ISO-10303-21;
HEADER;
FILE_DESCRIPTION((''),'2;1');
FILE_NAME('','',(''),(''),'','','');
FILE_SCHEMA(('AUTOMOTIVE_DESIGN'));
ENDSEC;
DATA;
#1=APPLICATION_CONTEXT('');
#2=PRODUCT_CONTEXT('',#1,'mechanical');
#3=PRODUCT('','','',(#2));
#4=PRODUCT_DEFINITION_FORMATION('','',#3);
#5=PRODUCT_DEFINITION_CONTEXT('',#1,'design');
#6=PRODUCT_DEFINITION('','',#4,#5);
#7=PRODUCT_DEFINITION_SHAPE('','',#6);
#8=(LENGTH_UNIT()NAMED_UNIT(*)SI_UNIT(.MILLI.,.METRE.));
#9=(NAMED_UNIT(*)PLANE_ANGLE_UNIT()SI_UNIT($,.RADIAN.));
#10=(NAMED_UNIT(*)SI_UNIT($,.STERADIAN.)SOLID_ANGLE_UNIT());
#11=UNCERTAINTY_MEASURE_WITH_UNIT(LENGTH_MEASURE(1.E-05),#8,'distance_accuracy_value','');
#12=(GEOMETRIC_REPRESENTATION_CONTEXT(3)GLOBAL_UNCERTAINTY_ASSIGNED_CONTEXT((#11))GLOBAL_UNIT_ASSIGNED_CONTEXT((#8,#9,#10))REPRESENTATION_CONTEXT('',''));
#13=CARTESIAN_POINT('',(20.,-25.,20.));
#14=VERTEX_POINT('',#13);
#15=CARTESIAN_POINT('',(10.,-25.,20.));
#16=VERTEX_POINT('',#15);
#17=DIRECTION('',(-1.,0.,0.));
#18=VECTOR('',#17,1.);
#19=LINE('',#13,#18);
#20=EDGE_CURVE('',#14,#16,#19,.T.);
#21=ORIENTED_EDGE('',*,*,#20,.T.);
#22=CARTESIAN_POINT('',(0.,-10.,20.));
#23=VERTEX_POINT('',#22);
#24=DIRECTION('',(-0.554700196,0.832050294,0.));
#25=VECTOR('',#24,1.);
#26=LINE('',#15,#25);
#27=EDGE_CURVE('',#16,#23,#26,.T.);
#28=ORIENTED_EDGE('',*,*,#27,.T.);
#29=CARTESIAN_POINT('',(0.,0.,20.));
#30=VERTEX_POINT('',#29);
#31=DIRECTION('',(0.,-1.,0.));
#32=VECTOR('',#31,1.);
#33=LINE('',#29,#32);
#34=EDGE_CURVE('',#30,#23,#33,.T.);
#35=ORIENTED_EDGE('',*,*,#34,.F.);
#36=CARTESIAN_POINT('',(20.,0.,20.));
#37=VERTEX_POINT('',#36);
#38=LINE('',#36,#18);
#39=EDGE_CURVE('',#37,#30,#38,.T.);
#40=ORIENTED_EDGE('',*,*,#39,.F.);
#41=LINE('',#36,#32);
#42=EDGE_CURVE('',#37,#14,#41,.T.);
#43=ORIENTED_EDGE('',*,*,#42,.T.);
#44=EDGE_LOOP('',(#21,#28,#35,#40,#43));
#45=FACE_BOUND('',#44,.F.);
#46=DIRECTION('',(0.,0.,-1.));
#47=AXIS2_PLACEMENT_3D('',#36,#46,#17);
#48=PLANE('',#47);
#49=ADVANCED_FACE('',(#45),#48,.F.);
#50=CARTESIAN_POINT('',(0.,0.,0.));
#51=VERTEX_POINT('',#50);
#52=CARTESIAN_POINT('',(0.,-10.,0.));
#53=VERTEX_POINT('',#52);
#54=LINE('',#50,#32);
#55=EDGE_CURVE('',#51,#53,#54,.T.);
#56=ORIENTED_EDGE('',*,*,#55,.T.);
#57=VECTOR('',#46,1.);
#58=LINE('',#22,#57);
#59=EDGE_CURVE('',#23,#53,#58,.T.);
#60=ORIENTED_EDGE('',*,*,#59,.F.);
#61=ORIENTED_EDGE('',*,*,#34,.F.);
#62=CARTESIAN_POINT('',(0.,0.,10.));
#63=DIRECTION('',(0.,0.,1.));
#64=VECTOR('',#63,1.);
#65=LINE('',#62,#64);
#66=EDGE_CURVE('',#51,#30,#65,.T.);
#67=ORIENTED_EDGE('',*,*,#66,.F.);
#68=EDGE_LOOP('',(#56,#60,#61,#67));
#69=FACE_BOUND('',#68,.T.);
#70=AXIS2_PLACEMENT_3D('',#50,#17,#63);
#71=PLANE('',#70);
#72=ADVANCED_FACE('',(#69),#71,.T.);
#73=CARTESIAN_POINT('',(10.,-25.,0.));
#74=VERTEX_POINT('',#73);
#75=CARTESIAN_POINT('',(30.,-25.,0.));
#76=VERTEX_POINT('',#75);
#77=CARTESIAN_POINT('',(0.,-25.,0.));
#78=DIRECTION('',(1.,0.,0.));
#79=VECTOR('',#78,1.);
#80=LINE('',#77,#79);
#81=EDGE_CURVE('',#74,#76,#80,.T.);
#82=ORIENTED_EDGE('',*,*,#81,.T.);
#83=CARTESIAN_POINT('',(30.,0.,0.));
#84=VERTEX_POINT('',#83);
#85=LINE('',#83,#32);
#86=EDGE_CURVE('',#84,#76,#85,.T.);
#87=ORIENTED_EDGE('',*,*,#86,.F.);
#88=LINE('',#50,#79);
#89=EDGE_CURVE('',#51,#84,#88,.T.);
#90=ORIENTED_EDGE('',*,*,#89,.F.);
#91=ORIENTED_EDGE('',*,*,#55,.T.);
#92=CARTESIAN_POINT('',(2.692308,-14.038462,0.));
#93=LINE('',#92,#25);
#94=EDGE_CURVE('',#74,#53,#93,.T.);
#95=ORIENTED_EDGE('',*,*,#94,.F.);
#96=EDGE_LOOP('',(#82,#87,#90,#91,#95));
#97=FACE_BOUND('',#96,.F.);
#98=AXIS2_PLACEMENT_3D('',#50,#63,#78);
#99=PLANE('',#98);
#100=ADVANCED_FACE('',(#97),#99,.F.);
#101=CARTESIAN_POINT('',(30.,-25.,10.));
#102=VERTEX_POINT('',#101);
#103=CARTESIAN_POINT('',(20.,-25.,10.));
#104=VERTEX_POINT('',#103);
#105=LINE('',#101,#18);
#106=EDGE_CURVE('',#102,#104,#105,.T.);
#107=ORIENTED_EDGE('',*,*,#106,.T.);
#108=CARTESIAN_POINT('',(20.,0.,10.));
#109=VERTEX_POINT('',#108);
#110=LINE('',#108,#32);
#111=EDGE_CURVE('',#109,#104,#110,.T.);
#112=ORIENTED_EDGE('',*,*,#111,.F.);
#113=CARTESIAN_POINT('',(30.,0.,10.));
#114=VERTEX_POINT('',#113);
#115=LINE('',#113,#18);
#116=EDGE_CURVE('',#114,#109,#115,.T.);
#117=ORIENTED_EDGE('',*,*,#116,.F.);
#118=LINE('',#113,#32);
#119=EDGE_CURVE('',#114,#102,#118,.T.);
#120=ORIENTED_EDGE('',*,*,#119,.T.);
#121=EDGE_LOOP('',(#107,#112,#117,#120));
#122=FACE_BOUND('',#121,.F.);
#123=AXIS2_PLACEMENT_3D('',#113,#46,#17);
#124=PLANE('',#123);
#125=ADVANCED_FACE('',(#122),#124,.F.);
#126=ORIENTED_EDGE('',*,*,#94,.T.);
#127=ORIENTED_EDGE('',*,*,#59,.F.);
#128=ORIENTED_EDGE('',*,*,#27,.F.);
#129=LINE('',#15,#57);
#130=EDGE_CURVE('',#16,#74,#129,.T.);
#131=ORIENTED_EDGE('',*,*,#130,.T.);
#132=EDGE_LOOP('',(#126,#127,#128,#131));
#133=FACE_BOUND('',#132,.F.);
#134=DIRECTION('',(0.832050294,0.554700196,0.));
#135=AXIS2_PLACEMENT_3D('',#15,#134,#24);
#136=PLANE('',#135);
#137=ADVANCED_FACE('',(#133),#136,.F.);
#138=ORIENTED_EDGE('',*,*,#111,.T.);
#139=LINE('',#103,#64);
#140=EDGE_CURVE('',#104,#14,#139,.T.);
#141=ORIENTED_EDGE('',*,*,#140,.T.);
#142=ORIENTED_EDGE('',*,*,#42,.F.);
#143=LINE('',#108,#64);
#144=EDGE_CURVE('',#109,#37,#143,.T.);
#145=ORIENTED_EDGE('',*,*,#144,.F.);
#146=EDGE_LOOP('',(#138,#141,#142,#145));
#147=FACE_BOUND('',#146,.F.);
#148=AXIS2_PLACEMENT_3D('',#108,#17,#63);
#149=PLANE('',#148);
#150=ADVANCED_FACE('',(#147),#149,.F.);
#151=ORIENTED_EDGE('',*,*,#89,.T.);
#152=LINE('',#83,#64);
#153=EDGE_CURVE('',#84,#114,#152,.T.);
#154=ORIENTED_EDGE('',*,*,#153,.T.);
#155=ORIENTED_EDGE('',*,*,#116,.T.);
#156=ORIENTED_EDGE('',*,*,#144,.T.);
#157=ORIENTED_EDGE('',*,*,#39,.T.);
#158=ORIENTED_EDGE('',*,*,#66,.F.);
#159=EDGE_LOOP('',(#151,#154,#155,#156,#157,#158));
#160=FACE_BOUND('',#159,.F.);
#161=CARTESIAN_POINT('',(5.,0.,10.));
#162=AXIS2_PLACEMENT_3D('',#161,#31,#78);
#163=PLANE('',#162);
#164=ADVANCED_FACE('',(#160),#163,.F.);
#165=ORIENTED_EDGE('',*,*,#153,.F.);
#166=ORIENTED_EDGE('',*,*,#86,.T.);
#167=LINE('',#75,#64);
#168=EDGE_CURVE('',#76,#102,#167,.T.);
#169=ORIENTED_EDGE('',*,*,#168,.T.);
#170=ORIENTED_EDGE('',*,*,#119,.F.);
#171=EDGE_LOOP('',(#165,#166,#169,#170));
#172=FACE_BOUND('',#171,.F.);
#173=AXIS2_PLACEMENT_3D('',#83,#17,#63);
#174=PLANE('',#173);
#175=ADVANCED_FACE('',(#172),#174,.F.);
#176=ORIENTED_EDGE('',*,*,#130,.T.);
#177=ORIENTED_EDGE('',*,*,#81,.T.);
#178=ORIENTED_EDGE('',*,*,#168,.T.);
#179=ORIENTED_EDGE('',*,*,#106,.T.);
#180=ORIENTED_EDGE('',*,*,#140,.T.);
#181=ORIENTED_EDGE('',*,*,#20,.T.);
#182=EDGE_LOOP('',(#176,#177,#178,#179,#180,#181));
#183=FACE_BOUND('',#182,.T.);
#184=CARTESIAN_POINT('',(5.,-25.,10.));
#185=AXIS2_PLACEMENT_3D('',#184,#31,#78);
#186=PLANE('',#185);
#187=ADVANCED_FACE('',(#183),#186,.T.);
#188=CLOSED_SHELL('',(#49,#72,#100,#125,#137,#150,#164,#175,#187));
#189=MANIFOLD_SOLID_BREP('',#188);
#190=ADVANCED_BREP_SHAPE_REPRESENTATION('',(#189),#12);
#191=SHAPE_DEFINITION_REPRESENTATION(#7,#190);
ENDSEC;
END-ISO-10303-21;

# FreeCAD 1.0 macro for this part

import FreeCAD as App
import Part
import Sketcher

V = App.Vector


def add_polygon(sketch, points):
    """Adds a closed chain of lines whose ends are joined by coincident constraints."""
    first, n = sketch.GeometryCount, len(points)
    for a, b in zip(points, points[1:] + points[:1]):
        sketch.addGeometry(Part.LineSegment(App.Vector(*a, 0), App.Vector(*b, 0)), False)
    for i in range(n):
        sketch.addConstraint(Sketcher.Constraint("Coincident", first + i, 2, first + (i + 1) % n, 1))

doc = App.newDocument("Part")
body = doc.addObject("PartDesign::Body", "Body")

# Sketch on XZ plane
sketch1 = body.newObject("Sketcher::SketchObject", "Sketch")
sketch1.AttachmentSupport = (doc.getObject("XZ_Plane"), [""])
sketch1.MapMode = "FlatFace"
add_polygon(sketch1, [(0, 20), (0, 0), (30, 0), (30, 10), (20, 10), (20, 20)])  # lines 0-5
sketch1.addConstraint(Sketcher.Constraint("Vertical", 0))
sketch1.addConstraint(Sketcher.Constraint("Horizontal", 1))
sketch1.addConstraint(Sketcher.Constraint("Vertical", 2))
sketch1.addConstraint(Sketcher.Constraint("Horizontal", 3))
sketch1.addConstraint(Sketcher.Constraint("Vertical", 4))
sketch1.addConstraint(Sketcher.Constraint("Horizontal", 5))
sketch1.addConstraint(Sketcher.Constraint("Coincident", 0, 2, -1, 1))
sketch1.addConstraint(Sketcher.Constraint("Equal", 5, 0))
sketch1.addConstraint(Sketcher.Constraint("Equal", 3, 2))
sketch1.addConstraint(Sketcher.Constraint("Equal", 2, 4))
sketch1.addConstraint(Sketcher.Constraint("DistanceX", 1, 1, 1, 2, 30.0))
pad1 = body.newObject("PartDesign::Pad", "Pad")
pad1.Profile = sketch1
pad1.Length = 25

# Sketch on XY plane
sketch2 = body.newObject("Sketcher::SketchObject", "Sketch001")
sketch2.AttachmentSupport = (doc.getObject("XY_Plane"), [""])
sketch2.MapMode = "FlatFace"
sketch2.AttachmentOffset = App.Placement(V(0, 0, 20), App.Rotation())
add_polygon(sketch2, [(10, -25), (0, -10), (0, -25)])  # lines 0-2
sketch2.addConstraint(Sketcher.Constraint("Vertical", 1))
sketch2.addConstraint(Sketcher.Constraint("Horizontal", 2))
sketch2.addConstraint(Sketcher.Constraint("PointOnObject", 0, 2, -2))
sketch2.addConstraint(Sketcher.Constraint("DistanceX", 2, 1, 2, 2, 10.0))
sketch2.addConstraint(Sketcher.Constraint("DistanceY", 1, 2, 1, 1, 15.0))
sketch2.addConstraint(Sketcher.Constraint("DistanceY", 0, 2, -1, 1, 10.0))
pocket1 = body.newObject("PartDesign::Pocket", "Pocket")
pocket1.Profile = sketch2
pocket1.Type = "ThroughAll"

doc.recompute()
